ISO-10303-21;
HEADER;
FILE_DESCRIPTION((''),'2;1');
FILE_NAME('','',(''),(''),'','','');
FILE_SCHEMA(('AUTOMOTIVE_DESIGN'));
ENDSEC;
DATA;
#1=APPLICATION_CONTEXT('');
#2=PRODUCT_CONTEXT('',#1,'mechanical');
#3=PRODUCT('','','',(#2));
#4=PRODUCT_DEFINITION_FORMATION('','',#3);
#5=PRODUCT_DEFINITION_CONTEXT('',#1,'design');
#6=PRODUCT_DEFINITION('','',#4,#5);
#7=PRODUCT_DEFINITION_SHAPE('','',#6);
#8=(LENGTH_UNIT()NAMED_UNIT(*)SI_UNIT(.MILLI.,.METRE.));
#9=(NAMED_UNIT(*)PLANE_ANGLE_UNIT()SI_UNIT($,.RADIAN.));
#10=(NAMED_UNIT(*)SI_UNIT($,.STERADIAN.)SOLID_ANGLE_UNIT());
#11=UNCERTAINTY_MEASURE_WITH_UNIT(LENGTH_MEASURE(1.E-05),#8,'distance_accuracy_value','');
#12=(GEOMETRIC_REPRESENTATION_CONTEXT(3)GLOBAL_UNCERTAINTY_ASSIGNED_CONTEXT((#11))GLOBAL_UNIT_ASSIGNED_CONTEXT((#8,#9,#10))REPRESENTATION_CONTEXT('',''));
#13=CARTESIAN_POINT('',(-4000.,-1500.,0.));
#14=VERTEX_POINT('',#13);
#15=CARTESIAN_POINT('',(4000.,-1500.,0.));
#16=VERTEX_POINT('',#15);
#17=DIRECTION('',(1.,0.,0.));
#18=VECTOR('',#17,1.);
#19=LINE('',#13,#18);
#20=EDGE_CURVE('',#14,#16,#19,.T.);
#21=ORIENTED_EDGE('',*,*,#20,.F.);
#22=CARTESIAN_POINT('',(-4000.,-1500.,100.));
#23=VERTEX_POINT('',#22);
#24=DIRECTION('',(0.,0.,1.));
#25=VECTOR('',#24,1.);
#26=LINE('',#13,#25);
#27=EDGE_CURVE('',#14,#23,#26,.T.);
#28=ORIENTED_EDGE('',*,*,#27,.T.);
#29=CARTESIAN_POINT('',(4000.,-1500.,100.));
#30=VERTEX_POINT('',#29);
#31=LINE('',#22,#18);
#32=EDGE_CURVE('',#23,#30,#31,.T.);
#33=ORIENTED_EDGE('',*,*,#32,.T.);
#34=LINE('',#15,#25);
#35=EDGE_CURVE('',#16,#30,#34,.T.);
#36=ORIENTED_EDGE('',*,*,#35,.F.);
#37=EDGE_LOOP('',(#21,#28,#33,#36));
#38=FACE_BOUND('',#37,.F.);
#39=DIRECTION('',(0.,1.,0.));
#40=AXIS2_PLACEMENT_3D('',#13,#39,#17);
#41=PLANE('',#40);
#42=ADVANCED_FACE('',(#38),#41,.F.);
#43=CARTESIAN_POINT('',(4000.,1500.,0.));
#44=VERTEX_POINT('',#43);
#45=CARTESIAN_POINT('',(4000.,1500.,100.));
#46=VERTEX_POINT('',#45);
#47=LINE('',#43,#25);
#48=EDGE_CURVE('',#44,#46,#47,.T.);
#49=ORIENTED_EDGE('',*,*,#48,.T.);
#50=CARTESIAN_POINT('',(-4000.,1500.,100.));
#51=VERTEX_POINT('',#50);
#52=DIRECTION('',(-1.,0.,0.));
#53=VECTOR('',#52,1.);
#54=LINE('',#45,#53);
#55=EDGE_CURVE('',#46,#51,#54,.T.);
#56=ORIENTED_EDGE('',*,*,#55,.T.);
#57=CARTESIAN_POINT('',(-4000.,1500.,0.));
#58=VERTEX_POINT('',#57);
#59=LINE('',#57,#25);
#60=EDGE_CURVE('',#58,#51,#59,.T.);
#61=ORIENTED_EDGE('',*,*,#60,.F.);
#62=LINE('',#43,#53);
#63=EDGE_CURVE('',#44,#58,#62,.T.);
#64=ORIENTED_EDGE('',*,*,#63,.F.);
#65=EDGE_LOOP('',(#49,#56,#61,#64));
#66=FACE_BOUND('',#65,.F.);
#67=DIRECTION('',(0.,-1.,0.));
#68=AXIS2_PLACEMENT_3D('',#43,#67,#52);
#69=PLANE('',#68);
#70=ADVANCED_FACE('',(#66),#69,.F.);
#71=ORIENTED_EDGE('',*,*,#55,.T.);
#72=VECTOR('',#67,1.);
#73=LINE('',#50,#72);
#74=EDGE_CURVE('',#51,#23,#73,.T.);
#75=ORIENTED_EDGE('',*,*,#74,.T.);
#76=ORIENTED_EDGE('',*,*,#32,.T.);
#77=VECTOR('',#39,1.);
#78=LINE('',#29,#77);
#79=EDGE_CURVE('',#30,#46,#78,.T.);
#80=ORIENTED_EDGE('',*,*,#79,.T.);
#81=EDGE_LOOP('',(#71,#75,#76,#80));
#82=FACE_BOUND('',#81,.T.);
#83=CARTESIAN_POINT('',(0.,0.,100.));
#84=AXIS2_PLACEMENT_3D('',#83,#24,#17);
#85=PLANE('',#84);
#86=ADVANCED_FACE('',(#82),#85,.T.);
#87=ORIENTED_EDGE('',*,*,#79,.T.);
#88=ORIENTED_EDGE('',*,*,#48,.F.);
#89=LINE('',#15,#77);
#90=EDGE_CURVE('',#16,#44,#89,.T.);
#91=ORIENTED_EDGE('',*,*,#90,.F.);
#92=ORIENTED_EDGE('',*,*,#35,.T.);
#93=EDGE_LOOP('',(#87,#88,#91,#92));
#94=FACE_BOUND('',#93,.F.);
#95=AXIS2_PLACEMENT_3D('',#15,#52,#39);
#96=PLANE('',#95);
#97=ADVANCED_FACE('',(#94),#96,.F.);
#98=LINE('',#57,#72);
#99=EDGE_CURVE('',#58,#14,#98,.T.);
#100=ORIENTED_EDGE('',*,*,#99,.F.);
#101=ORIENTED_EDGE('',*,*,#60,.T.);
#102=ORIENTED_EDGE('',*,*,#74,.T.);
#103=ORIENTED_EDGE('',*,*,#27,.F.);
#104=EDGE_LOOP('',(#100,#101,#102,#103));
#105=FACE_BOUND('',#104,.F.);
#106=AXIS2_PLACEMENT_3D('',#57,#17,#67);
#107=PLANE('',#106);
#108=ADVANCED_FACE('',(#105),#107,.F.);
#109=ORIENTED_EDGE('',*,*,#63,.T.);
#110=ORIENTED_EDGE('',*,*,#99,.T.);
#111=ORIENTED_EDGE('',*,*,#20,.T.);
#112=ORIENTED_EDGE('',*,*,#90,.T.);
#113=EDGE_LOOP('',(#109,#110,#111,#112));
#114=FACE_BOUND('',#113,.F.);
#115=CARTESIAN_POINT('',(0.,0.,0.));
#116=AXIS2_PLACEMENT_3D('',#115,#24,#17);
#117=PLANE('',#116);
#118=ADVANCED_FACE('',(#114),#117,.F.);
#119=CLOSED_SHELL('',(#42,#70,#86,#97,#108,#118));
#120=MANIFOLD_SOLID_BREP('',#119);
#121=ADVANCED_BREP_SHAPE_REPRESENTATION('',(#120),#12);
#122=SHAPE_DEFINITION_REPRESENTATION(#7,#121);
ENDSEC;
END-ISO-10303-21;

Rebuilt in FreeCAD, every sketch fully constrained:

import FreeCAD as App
import Part
import Sketcher
from FreeCAD import Vector


def add_polygon(sketch, points):
    """Adds a closed chain of lines whose ends are joined by coincident constraints."""
    first, n = sketch.GeometryCount, len(points)
    for a, b in zip(points, points[1:] + points[:1]):
        sketch.addGeometry(Part.LineSegment(App.Vector(*a, 0), App.Vector(*b, 0)), False)
    for i in range(n):
        sketch.addConstraint(Sketcher.Constraint("Coincident", first + i, 2, first + (i + 1) % n, 1))

doc = App.newDocument("Part")
params = doc.addObject("Spreadsheet::Sheet", "Params")
for row, (alias, value) in enumerate([
    ("sketch1_width", "8000 mm"),
    ("sketch1_height", "3000 mm"),
    ("pad1_length", "100 mm"),
], start=1):
    params.set(f"A{row}", alias)
    params.set(f"B{row}", "=" + value)
    params.setAlias(f"B{row}", alias)

body = doc.addObject("PartDesign::Body", "Body")

# Sketch on XY plane
sketch1 = doc.addObject("Sketcher::SketchObject", "Sketch")
body.addObject(sketch1)
sketch1.AttachmentSupport = (doc.XY_Plane, [""])
sketch1.MapMode = "FlatFace"
add_polygon(sketch1, [(-4000, 1500), (-4000, -1500), (4000, -1500), (4000, 1500)])  # lines 0-3
sketch1.addConstraint([
    Sketcher.Constraint("Vertical", 0),
    Sketcher.Constraint("Horizontal", 1),
    Sketcher.Constraint("Vertical", 2),
    Sketcher.Constraint("Horizontal", 3),
    Sketcher.Constraint("Symmetric", 0, 2, 2, 2, -1, 1),
    Sketcher.Constraint("DistanceX", 1, 1, 1, 2, 8000.0),
    Sketcher.Constraint("DistanceY", 0, 2, 0, 1, 3000.0),
])
sketch1.setExpression("Constraints[9]", "Params.sketch1_width")
sketch1.setExpression("Constraints[10]", "Params.sketch1_height")
pad1 = doc.addObject("PartDesign::Pad", "Pad")
body.addObject(pad1)
pad1.Profile = sketch1
pad1.setExpression("Length", "Params.pad1_length")

doc.recompute()
